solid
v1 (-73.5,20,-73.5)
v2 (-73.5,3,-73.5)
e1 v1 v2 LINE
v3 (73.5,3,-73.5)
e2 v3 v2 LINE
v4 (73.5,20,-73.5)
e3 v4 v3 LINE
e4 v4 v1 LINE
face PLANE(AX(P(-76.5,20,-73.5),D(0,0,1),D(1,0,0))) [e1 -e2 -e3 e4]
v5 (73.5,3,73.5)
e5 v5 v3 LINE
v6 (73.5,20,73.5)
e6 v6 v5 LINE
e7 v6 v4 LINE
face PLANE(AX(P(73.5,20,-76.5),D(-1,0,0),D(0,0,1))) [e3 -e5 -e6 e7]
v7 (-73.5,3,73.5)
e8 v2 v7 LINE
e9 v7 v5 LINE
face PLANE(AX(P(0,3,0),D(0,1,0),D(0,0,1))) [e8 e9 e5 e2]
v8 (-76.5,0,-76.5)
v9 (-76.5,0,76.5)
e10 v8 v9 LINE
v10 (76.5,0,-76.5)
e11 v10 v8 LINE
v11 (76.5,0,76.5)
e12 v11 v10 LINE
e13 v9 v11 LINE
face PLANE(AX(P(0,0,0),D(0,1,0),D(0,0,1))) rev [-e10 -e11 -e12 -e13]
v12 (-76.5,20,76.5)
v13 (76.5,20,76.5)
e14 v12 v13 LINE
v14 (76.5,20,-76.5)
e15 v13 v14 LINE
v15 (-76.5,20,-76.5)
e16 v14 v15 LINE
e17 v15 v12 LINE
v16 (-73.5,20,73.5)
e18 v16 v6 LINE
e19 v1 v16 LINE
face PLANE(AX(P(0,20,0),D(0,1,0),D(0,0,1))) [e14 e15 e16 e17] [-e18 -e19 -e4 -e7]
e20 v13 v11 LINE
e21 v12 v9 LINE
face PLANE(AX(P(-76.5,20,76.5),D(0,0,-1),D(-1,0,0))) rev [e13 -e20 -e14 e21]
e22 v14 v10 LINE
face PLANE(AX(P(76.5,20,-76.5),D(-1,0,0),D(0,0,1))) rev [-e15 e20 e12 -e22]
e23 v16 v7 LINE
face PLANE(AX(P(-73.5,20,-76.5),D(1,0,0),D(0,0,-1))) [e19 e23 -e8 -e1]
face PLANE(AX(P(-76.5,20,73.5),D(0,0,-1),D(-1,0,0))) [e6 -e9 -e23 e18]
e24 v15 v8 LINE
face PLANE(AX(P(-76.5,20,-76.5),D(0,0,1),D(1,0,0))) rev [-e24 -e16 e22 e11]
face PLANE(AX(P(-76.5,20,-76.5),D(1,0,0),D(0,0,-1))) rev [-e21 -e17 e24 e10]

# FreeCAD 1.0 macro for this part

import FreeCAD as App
import Part
import Sketcher

V = App.Vector
Q = App.Units.Quantity


def faces_at(feature, points):
    """Names of the faces that lie closest to the given points."""
    faces = feature.Shape.Faces
    near = lambda p: min(range(len(faces)), key=lambda i: faces[i].distToShape(Part.Vertex(*p))[0])
    return sorted({f"Face{near(p) + 1}" for p in points})


def add_polygon(sketch, points):
    """Adds a closed chain of lines whose ends are joined by coincident constraints."""
    first, n = sketch.GeometryCount, len(points)
    for a, b in zip(points, points[1:] + points[:1]):
        sketch.addGeometry(Part.LineSegment(App.Vector(*a, 0), App.Vector(*b, 0)), False)
    for i in range(n):
        sketch.addConstraint(Sketcher.Constraint("Coincident", first + i, 2, first + (i + 1) % n, 1))

doc = App.newDocument("Part")
params = doc.addObject("Spreadsheet::Sheet", "Params")
for row, (alias, value) in enumerate([
    ("sketch1_width", "153 mm"),
    ("pad1_length", "20 mm"),
    ("thickness_wall", "3 mm"),
], start=1):
    params.set(f"A{row}", alias)
    params.set(f"B{row}", "=" + value)
    params.setAlias(f"B{row}", alias)

body = doc.addObject("PartDesign::Body", "Body")

sketch1 = doc.addObject("Sketcher::SketchObject", "Sketch")
body.addObject(sketch1)
sketch1.AttachmentSupport = (doc.XZ_Plane, [""])
sketch1.MapMode = "FlatFace"
add_polygon(sketch1, [(-76, -76), (-76, 76), (76, 76), (76, -76)])
sketch1.addConstraint([
    Sketcher.Constraint("Vertical", 0),
    Sketcher.Constraint("Horizontal", 1),
    Sketcher.Constraint("Vertical", 2),
    Sketcher.Constraint("Horizontal", 3),
    Sketcher.Constraint("Symmetric", 0, 2, 2, 2, -1, 1),
    Sketcher.Constraint("Equal", 3, 0),
    Sketcher.Constraint("DistanceX", 1, 1, 1, 2, Q("153 mm")),
])
sketch1.setExpression("Constraints[10]", "Params.sketch1_width")
pad1 = doc.addObject("PartDesign::Pad", "Pad")
body.addObject(pad1)
pad1.Profile = sketch1
pad1.setExpression("Length", "Params.pad1_length")
pad1.Reversed = True
doc.recompute()

thickness = doc.addObject("PartDesign::Thickness", "Thickness")
body.addObject(thickness)
thickness.Base = (pad1, faces_at(pad1, [(0, 20, 0)]))
thickness.setExpression("Value", "Params.thickness_wall")
thickness.Reversed = True
thickness.Join = "Intersection"

doc.recompute()
